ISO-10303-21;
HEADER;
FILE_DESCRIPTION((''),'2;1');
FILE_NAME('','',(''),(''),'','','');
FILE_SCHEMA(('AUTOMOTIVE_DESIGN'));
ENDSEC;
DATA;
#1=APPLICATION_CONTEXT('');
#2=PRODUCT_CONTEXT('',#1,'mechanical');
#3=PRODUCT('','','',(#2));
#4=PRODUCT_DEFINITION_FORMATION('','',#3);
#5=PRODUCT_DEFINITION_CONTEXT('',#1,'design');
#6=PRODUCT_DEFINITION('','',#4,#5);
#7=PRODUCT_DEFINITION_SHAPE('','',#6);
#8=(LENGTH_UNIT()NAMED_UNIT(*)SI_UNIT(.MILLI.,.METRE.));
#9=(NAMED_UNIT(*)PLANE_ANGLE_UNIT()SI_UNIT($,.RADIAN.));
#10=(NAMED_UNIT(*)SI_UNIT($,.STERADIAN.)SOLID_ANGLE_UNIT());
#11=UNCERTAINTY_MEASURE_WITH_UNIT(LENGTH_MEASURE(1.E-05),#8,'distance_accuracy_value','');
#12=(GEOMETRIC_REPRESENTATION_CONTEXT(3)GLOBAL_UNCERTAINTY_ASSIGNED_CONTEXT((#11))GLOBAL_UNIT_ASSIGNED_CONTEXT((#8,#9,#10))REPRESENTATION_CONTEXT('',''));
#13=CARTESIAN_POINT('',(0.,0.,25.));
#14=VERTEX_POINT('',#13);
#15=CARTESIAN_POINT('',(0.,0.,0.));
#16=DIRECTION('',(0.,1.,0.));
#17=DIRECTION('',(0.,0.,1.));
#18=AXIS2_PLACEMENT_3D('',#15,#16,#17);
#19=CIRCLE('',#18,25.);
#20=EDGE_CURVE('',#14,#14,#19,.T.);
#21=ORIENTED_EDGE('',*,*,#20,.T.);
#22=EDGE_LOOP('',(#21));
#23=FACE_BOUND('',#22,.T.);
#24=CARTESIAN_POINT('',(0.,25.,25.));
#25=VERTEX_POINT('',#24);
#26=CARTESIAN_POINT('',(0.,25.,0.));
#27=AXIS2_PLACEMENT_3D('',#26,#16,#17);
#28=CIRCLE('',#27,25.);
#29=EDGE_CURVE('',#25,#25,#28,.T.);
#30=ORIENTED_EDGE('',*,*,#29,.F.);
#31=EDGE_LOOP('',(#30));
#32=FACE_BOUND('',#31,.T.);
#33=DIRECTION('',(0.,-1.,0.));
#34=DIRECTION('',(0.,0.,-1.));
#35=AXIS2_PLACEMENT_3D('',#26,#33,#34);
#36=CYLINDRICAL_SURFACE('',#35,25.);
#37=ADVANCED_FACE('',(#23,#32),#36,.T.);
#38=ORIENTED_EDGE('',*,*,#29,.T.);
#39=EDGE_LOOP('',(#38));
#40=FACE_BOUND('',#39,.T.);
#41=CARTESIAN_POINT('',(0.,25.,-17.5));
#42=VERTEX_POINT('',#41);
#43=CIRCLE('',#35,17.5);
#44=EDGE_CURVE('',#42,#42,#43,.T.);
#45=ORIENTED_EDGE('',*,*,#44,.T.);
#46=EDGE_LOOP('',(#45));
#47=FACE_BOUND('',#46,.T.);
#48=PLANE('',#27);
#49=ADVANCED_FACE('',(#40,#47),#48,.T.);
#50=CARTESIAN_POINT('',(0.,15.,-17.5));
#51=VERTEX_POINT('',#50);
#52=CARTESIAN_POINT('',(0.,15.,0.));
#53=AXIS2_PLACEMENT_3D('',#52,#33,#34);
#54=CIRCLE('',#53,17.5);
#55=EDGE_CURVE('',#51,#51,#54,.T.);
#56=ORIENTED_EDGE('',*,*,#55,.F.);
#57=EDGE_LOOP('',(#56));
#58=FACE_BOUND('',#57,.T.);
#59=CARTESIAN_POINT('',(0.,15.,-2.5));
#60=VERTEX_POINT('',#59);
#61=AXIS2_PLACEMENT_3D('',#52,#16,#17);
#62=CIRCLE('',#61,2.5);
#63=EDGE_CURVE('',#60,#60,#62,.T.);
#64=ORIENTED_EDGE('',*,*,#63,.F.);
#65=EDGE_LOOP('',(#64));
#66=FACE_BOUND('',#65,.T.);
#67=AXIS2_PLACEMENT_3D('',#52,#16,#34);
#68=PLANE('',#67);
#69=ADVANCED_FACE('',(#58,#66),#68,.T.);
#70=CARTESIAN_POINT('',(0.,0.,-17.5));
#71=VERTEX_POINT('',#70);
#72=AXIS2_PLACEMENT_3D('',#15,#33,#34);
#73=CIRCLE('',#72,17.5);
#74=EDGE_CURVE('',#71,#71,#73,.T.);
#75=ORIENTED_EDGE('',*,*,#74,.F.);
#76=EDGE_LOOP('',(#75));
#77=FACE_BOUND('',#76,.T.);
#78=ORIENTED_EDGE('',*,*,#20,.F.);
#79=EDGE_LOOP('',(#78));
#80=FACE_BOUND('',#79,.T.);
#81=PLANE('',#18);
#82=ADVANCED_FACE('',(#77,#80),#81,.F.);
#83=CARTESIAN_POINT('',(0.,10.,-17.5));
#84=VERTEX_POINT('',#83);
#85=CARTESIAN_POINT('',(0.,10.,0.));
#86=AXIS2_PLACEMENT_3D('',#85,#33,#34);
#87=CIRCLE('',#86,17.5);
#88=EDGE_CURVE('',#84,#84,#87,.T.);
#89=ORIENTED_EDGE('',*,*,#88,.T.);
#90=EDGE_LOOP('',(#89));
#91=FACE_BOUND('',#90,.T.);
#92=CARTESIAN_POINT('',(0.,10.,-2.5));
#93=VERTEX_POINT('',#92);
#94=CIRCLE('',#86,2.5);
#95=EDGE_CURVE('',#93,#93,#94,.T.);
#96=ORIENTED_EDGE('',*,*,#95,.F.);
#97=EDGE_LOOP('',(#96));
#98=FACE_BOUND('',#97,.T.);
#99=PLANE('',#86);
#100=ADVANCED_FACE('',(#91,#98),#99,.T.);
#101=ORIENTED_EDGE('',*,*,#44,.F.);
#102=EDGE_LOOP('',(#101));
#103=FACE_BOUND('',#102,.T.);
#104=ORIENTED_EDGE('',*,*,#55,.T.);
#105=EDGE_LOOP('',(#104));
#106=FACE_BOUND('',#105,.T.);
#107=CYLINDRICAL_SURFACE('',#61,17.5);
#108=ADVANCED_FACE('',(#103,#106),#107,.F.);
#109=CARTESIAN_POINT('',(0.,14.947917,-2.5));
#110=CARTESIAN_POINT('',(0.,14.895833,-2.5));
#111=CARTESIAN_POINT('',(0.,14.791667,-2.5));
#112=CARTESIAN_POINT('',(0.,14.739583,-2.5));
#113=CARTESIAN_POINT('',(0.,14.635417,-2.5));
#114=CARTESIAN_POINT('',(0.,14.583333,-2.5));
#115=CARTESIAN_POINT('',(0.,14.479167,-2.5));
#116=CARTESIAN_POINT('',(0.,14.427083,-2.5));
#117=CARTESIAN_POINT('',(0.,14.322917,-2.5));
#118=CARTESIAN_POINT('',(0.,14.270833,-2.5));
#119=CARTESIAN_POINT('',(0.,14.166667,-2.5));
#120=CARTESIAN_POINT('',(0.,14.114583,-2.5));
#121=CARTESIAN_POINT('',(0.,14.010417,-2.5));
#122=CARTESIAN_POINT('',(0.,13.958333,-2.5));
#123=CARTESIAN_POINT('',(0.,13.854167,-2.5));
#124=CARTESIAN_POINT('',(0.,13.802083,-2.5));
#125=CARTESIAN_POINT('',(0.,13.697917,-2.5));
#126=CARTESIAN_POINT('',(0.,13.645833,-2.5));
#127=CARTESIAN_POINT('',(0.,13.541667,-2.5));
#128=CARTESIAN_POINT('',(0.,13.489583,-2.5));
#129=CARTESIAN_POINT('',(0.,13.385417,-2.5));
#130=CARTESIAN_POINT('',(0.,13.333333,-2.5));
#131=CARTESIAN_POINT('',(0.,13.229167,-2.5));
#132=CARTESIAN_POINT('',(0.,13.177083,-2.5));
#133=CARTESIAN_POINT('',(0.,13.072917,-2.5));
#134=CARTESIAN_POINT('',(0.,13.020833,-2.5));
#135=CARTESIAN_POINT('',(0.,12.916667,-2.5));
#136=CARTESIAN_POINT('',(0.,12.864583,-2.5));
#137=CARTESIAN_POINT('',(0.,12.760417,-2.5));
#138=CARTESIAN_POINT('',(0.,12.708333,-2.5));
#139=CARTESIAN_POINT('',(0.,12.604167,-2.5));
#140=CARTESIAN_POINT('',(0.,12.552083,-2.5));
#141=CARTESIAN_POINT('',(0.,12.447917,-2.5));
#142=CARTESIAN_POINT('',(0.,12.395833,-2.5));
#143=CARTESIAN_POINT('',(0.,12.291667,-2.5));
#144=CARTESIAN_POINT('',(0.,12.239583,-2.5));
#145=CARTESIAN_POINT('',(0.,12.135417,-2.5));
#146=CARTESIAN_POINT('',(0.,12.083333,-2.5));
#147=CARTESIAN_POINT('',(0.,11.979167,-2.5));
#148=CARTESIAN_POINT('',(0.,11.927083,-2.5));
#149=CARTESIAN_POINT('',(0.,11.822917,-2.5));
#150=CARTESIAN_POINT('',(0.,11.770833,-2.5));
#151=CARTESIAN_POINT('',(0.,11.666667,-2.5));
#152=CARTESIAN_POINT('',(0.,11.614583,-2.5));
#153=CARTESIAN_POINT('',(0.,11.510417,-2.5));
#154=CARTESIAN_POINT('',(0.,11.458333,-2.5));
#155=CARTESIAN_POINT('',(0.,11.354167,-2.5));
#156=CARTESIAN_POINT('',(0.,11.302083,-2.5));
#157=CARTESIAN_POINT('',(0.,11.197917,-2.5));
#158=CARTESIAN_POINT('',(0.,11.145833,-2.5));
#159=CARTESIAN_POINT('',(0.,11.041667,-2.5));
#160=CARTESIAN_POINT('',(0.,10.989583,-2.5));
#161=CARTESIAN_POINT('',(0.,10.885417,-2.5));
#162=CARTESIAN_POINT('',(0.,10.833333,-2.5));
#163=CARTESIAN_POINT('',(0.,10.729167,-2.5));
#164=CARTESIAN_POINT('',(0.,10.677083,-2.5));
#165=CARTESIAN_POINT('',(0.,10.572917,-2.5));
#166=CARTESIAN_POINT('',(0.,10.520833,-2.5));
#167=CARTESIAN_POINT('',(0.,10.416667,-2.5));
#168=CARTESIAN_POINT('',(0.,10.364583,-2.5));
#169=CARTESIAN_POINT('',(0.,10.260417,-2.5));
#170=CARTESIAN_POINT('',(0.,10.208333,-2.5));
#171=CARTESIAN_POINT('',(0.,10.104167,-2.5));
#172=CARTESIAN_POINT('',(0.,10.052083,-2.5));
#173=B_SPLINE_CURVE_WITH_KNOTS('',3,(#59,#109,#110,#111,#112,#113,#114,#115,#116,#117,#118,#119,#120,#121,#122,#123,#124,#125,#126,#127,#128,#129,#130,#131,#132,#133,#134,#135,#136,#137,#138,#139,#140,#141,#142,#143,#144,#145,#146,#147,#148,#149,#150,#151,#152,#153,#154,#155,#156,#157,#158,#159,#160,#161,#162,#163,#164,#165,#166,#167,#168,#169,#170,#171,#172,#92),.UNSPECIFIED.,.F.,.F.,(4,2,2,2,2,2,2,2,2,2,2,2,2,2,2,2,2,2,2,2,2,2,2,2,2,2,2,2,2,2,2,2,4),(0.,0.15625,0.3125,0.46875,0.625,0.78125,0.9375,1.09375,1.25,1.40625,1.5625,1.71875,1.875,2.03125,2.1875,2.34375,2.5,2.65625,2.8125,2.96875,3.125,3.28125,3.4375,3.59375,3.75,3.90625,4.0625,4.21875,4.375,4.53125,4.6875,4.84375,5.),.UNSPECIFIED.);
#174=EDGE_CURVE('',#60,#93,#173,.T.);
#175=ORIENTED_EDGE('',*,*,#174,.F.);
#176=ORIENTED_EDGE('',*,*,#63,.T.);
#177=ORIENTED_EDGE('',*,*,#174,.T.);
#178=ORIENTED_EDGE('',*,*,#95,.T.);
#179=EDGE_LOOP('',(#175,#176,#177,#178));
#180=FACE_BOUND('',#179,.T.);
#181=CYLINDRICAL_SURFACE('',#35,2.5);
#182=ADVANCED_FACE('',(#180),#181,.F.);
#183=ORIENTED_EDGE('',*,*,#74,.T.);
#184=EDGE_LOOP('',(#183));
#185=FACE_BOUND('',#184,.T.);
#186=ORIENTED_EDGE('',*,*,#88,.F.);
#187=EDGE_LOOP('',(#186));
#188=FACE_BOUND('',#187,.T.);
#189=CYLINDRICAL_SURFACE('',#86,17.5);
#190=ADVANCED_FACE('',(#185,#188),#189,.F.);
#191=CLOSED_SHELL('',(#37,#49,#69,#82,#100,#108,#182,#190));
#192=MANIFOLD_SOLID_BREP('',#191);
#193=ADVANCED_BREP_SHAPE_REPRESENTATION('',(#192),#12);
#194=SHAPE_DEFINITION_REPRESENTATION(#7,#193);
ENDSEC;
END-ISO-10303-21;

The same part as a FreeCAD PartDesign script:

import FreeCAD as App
import Part
import Sketcher
from FreeCAD import Vector
Q = App.Units.Quantity

doc = App.newDocument("Part")
body = doc.addObject("PartDesign::Body", "Body")

sketch1 = body.newObject("Sketcher::SketchObject", "Sketch")
sketch1.AttachmentSupport = (doc.getObject("XZ_Plane"), [""])
sketch1.MapMode = "FlatFace"
sketch1.addGeometry(Part.Circle(Vector(0, 0, 0), Vector(0, 0, 1), 25), False)
sketch1.addConstraint([
    Sketcher.Constraint("Coincident", 0, 3, -1, 1),
    Sketcher.Constraint("Diameter", 0, Q("50 mm")),
])
pad1 = body.newObject("PartDesign::Pad", "Pad")
pad1.Profile = sketch1
pad1.Length = 25
pad1.Reversed = True

sketch2 = body.newObject("Sketcher::SketchObject", "Sketch001")
sketch2.AttachmentSupport = (doc.getObject("XZ_Plane"), [""])
sketch2.MapMode = "FlatFace"
sketch2.addGeometry(Part.Circle(Vector(0, 0, 0), Vector(0, 0, 1), 17.5), False)
sketch2.addConstraint([
    Sketcher.Constraint("Coincident", 0, 3, -1, 1),
    Sketcher.Constraint("Diameter", 0, Q("35 mm")),
])
pocket1 = body.newObject("PartDesign::Pocket", "Pocket")
pocket1.Profile = sketch2
pocket1.Length = 10
doc.recompute()

datumplane = body.newObject("PartDesign::Plane", "DatumPlane")
datumplane.AttachmentSupport = (doc.getObject("XZ_Plane"), [""])
datumplane.MapMode = "FlatFace"
datumplane.AttachmentOffset = App.Placement(Vector(0, 0, -12.5), App.Rotation())
mirrored = body.newObject("PartDesign::Mirrored", "Mirrored")
mirrored.Originals = [pocket1]
mirrored.MirrorPlane = (datumplane, [""])
body.Tip = mirrored

sketch3 = body.newObject("Sketcher::SketchObject", "Sketch002")
sketch3.AttachmentSupport = (doc.getObject("XZ_Plane"), [""])
sketch3.MapMode = "FlatFace"
sketch3.AttachmentOffset = App.Placement(Vector(0, 0, -10), App.Rotation())
sketch3.addGeometry(Part.Circle(Vector(0, 0, 0), Vector(0, 0, 1), 2.5), False)
sketch3.addConstraint([
    Sketcher.Constraint("Coincident", 0, 3, -1, 1),
    Sketcher.Constraint("Diameter", 0, Q("5 mm")),
])
pocket2 = body.newObject("PartDesign::Pocket", "Pocket001")
pocket2.Profile = sketch3
pocket2.Type = "ThroughAll"

doc.recompute()
